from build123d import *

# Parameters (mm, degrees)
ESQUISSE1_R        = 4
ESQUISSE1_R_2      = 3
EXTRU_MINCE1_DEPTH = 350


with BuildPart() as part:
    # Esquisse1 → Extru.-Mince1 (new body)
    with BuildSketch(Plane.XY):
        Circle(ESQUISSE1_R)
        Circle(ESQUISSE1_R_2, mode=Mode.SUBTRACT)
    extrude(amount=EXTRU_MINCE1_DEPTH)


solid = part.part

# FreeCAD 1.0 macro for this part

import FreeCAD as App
import Part
import Sketcher
from FreeCAD import Vector
Q = App.Units.Quantity

doc = App.newDocument("Part")
body = doc.addObject("PartDesign::Body", "Body")

# Sketch on XY plane
sketch1 = body.newObject("Sketcher::SketchObject", "Sketch")
sketch1.AttachmentSupport = (doc.getObject("XY_Plane"), [""])
sketch1.MapMode = "FlatFace"
sketch1.addGeometry([
    Part.Circle(Vector(0, 0, 0), Vector(0, 0, 1), 4),
    Part.Circle(Vector(0, 0, 0), Vector(0, 0, 1), 3),
], False)
sketch1.addConstraint([
    Sketcher.Constraint("Coincident", 0, 3, -1, 1),
    Sketcher.Constraint("Coincident", 1, 3, -1, 1),
    Sketcher.Constraint("Diameter", 0, Q("8 mm")),
    Sketcher.Constraint("Diameter", 1, Q("6 mm")),
])
pad1 = body.newObject("PartDesign::Pad", "Pad")
pad1.Profile = sketch1
pad1.Length = 350

doc.recompute()
